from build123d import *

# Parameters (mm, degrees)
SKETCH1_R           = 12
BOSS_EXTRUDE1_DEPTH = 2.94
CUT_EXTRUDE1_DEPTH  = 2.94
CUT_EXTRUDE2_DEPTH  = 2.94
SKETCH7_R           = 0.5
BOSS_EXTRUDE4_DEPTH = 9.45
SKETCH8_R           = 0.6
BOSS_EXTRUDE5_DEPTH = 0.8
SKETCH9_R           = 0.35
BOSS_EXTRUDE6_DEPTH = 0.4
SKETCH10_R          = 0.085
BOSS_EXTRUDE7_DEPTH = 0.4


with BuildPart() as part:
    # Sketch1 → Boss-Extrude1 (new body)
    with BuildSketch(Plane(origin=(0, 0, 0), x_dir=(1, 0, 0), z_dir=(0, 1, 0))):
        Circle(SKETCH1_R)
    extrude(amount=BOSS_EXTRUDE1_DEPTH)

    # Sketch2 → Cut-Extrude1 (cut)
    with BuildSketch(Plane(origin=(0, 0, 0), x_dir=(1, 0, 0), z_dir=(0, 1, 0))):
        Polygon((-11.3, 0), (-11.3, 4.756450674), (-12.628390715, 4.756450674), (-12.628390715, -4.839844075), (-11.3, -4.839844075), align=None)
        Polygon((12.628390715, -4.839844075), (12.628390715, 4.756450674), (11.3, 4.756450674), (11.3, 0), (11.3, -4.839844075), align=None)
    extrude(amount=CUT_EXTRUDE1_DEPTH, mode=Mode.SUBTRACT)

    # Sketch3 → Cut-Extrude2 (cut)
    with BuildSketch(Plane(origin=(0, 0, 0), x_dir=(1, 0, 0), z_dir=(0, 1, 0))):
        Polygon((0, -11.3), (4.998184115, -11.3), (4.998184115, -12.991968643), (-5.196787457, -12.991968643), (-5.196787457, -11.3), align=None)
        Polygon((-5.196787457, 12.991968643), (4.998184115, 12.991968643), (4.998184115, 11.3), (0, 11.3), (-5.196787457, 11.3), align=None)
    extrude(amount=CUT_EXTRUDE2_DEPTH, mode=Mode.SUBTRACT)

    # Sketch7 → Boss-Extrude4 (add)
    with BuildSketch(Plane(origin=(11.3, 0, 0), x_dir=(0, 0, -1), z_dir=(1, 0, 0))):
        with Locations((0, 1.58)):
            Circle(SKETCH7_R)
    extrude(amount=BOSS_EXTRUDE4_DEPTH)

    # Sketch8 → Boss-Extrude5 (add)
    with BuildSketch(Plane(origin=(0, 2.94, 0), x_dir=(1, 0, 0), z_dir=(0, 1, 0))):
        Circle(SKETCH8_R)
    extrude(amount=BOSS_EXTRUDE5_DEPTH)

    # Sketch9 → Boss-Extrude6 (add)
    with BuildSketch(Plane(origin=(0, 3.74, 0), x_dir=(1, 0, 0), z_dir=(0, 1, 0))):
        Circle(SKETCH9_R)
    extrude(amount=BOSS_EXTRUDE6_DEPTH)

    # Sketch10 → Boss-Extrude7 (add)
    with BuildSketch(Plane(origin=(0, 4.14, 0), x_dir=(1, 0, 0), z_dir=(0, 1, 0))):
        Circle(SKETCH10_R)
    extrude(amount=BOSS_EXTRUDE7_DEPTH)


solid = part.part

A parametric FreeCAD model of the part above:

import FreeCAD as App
import Part
import Sketcher


def add_polygon(sketch, points):
    """Adds a closed chain of lines whose ends are joined by coincident constraints."""
    first, n = sketch.GeometryCount, len(points)
    for a, b in zip(points, points[1:] + points[:1]):
        sketch.addGeometry(Part.LineSegment(App.Vector(*a, 0), App.Vector(*b, 0)), False)
    for i in range(n):
        sketch.addConstraint(Sketcher.Constraint("Coincident", first + i, 2, first + (i + 1) % n, 1))

doc = App.newDocument("Part")
params = doc.addObject("Spreadsheet::Sheet", "Params")
for row, (alias, value) in enumerate([
    ("sketch1_diameter", "24 mm"),
    ("pad1_length", "2.94 mm"),
    ("pocket1_length", "2.94 mm"),
    ("pocket2_length", "2.94 mm"),
    ("sketch4_diameter", "1 mm"),
    ("pad2_length", "9.45 mm"),
    ("sketch5_diameter", "1.2 mm"),
    ("pad3_length", "0.8 mm"),
    ("sketch6_diameter", "0.7 mm"),
    ("pad4_length", "0.4 mm"),
    ("sketch7_diameter", "0.17 mm"),
    ("pad5_length", "0.4 mm"),
], start=1):
    params.set(f"A{row}", alias)
    params.set(f"B{row}", "=" + value)
    params.setAlias(f"B{row}", alias)

body = doc.addObject("PartDesign::Body", "Body")

sketch1 = body.newObject("Sketcher::SketchObject", "Sketch")
sketch1.AttachmentSupport = (doc.getObject("XZ_Plane"), [""])
sketch1.MapMode = "FlatFace"
sketch1.addGeometry(Part.Circle(App.Vector(0, 0, 0), App.Vector(0, 0, 1), 12), False)
sketch1.addConstraint([
    Sketcher.Constraint("Coincident", 0, 3, -1, 1),
    Sketcher.Constraint("Diameter", 0, 24.0),
])
sketch1.setExpression("Constraints[1]", "Params.sketch1_diameter")
pad1 = body.newObject("PartDesign::Pad", "Pad")
pad1.Profile = sketch1
pad1.setExpression("Length", "Params.pad1_length")
pad1.Reversed = True

sketch2 = body.newObject("Sketcher::SketchObject", "Sketch001")
sketch2.AttachmentSupport = (doc.getObject("XZ_Plane"), [""])
sketch2.MapMode = "FlatFace"
add_polygon(sketch2, [(-11.3, -4.8), (-12.6, -4.8), (-12.6, 4.8), (-11.3, 4.8)])
add_polygon(sketch2, [(12.6, 4.8), (12.6, -4.8), (11.3, -4.8), (11.3, 4.8)])
sketch2.addConstraint([
    Sketcher.Constraint("Horizontal", 0),
    Sketcher.Constraint("Vertical", 1),
    Sketcher.Constraint("Horizontal", 2),
    Sketcher.Constraint("Vertical", 3),
    Sketcher.Constraint("Vertical", 4),
    Sketcher.Constraint("Horizontal", 5),
    Sketcher.Constraint("Vertical", 6),
    Sketcher.Constraint("Horizontal", 7),
    Sketcher.Constraint("Symmetric", 0, 2, 4, 2, -2),
    Sketcher.Constraint("Symmetric", 2, 2, 6, 2, -2),
    Sketcher.Constraint("DistanceX", 2, 2, -1, 1, 11.3),
    Sketcher.Constraint("DistanceX", 0, 2, 0, 1, 1.328391),
    Sketcher.Constraint("DistanceY", 1, 1, 1, 2, 9.596295),
    Sketcher.Constraint("DistanceY", 0, 2, -1, 1, 4.756451),
])
pocket1 = body.newObject("PartDesign::Pocket", "Pocket")
pocket1.Profile = sketch2
pocket1.setExpression("Length", "Params.pocket1_length")

sketch3 = body.newObject("Sketcher::SketchObject", "Sketch002")
sketch3.AttachmentSupport = (doc.getObject("XZ_Plane"), [""])
sketch3.MapMode = "FlatFace"
add_polygon(sketch3, [(5, 11.3), (-5.2, 11.3), (-5.2, 13), (5, 13)])
add_polygon(sketch3, [(5, -13), (-5.2, -13), (-5.2, -11.3), (5, -11.3)])
sketch3.addConstraint([
    Sketcher.Constraint("Horizontal", 0),
    Sketcher.Constraint("Vertical", 1),
    Sketcher.Constraint("Horizontal", 2),
    Sketcher.Constraint("Vertical", 3),
    Sketcher.Constraint("Horizontal", 4),
    Sketcher.Constraint("Vertical", 5),
    Sketcher.Constraint("Horizontal", 6),
    Sketcher.Constraint("Vertical", 7),
    Sketcher.Constraint("Symmetric", 1, 2, 4, 2, -1),
    Sketcher.Constraint("Symmetric", 3, 2, 6, 2, -1),
    Sketcher.Constraint("DistanceY", -1, 1, 0, 2, 11.3),
    Sketcher.Constraint("DistanceX", 0, 2, 0, 1, 10.194972),
    Sketcher.Constraint("DistanceY", 1, 1, 1, 2, 1.691969),
    Sketcher.Constraint("DistanceX", 0, 2, -1, 1, 5.196787),
])
pocket2 = body.newObject("PartDesign::Pocket", "Pocket001")
pocket2.Profile = sketch3
pocket2.setExpression("Length", "Params.pocket2_length")

sketch4 = body.newObject("Sketcher::SketchObject", "Sketch003")
sketch4.AttachmentSupport = (doc.getObject("YZ_Plane"), [""])
sketch4.MapMode = "FlatFace"
sketch4.AttachmentOffset = App.Placement(App.Vector(0, 0, 11.3), App.Rotation())
sketch4.addGeometry(Part.Circle(App.Vector(1.6, 0, 0), App.Vector(0, 0, 1), 0.5), False)
sketch4.addConstraint([
    Sketcher.Constraint("PointOnObject", 0, 3, -1),
    Sketcher.Constraint("Diameter", 0, 1.0),
    Sketcher.Constraint("DistanceX", -1, 1, 0, 3, 1.58),
])
sketch4.setExpression("Constraints[1]", "Params.sketch4_diameter")
pad2 = body.newObject("PartDesign::Pad", "Pad001")
pad2.Profile = sketch4
pad2.setExpression("Length", "Params.pad2_length")

sketch5 = body.newObject("Sketcher::SketchObject", "Sketch004")
sketch5.AttachmentSupport = (doc.getObject("XZ_Plane"), [""])
sketch5.MapMode = "FlatFace"
sketch5.AttachmentOffset = App.Placement(App.Vector(0, 0, -2.94), App.Rotation())
sketch5.addGeometry(Part.Circle(App.Vector(0, 0, 0), App.Vector(0, 0, 1), 0.6), False)
sketch5.addConstraint([
    Sketcher.Constraint("Coincident", 0, 3, -1, 1),
    Sketcher.Constraint("Diameter", 0, 1.2),
])
sketch5.setExpression("Constraints[1]", "Params.sketch5_diameter")
pad3 = body.newObject("PartDesign::Pad", "Pad002")
pad3.Profile = sketch5
pad3.setExpression("Length", "Params.pad3_length")
pad3.Reversed = True

sketch6 = body.newObject("Sketcher::SketchObject", "Sketch005")
sketch6.AttachmentSupport = (doc.getObject("XZ_Plane"), [""])
sketch6.MapMode = "FlatFace"
sketch6.AttachmentOffset = App.Placement(App.Vector(0, 0, -3.74), App.Rotation())
sketch6.addGeometry(Part.Circle(App.Vector(0, 0, 0), App.Vector(0, 0, 1), 0.35), False)
sketch6.addConstraint([
    Sketcher.Constraint("Coincident", 0, 3, -1, 1),
    Sketcher.Constraint("Diameter", 0, 0.7),
])
sketch6.setExpression("Constraints[1]", "Params.sketch6_diameter")
pad4 = body.newObject("PartDesign::Pad", "Pad003")
pad4.Profile = sketch6
pad4.setExpression("Length", "Params.pad4_length")
pad4.Reversed = True

sketch7 = body.newObject("Sketcher::SketchObject", "Sketch006")
sketch7.AttachmentSupport = (doc.getObject("XZ_Plane"), [""])
sketch7.MapMode = "FlatFace"
sketch7.AttachmentOffset = App.Placement(App.Vector(0, 0, -4.14), App.Rotation())
sketch7.addGeometry(Part.Circle(App.Vector(0, 0, 0), App.Vector(0, 0, 1), 0.09), False)
sketch7.addConstraint([
    Sketcher.Constraint("Coincident", 0, 3, -1, 1),
    Sketcher.Constraint("Diameter", 0, 0.17),
])
sketch7.setExpression("Constraints[1]", "Params.sketch7_diameter")
pad5 = body.newObject("PartDesign::Pad", "Pad004")
pad5.Profile = sketch7
pad5.setExpression("Length", "Params.pad5_length")
pad5.Reversed = True

doc.recompute()
